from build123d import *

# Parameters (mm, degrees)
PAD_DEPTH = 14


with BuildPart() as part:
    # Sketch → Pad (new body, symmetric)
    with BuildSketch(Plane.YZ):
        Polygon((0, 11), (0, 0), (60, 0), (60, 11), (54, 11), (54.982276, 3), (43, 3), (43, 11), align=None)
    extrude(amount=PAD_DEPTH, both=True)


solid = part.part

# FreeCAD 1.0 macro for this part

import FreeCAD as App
import Part
import Sketcher
from FreeCAD import Vector
Q = App.Units.Quantity


def add_polygon(sketch, points):
    """Adds a closed chain of lines whose ends are joined by coincident constraints."""
    first, n = sketch.GeometryCount, len(points)
    for a, b in zip(points, points[1:] + points[:1]):
        sketch.addGeometry(Part.LineSegment(App.Vector(*a, 0), App.Vector(*b, 0)), False)
    for i in range(n):
        sketch.addConstraint(Sketcher.Constraint("Coincident", first + i, 2, first + (i + 1) % n, 1))

doc = App.newDocument("Part")
body = doc.addObject("PartDesign::Body", "Body")

# Sketch on YZ plane
sketch1 = body.newObject("Sketcher::SketchObject", "Sketch")
sketch1.AttachmentSupport = (doc.getObject("YZ_Plane"), [""])
sketch1.MapMode = "FlatFace"
add_polygon(sketch1, [(0, 11), (0, 0), (60, 0), (60, 11), (54, 11), (55, 3), (43, 3), (43, 11)])  # lines 0-7
sketch1.addConstraint([
    Sketcher.Constraint("Vertical", 0),
    Sketcher.Constraint("Horizontal", 1),
    Sketcher.Constraint("Vertical", 2),
    Sketcher.Constraint("Horizontal", 3),
    Sketcher.Constraint("Horizontal", 5),
    Sketcher.Constraint("Vertical", 6),
    Sketcher.Constraint("Horizontal", 7),
    Sketcher.Constraint("Coincident", 0, 2, -1, 1),
    Sketcher.Constraint("Horizontal", 3, 2, 6, 2),
    Sketcher.Constraint("DistanceX", 1, 1, 1, 2, 60.0),
    Sketcher.Constraint("DistanceX", 3, 2, 3, 1, 6.0),
    Sketcher.Constraint("DistanceX", 7, 2, 7, 1, 43.0),
    Sketcher.Constraint("DistanceY", 0, 2, 0, 1, 11.0),
    Sketcher.Constraint("DistanceY", 6, 1, 6, 2, 8.0),
    Sketcher.Constraint("Angle", 4, Q("-83.000003 deg")),
])
pad1 = body.newObject("PartDesign::Pad", "Pad")
pad1.Profile = sketch1
pad1.Length = 28
pad1.Midplane = True

doc.recompute()
